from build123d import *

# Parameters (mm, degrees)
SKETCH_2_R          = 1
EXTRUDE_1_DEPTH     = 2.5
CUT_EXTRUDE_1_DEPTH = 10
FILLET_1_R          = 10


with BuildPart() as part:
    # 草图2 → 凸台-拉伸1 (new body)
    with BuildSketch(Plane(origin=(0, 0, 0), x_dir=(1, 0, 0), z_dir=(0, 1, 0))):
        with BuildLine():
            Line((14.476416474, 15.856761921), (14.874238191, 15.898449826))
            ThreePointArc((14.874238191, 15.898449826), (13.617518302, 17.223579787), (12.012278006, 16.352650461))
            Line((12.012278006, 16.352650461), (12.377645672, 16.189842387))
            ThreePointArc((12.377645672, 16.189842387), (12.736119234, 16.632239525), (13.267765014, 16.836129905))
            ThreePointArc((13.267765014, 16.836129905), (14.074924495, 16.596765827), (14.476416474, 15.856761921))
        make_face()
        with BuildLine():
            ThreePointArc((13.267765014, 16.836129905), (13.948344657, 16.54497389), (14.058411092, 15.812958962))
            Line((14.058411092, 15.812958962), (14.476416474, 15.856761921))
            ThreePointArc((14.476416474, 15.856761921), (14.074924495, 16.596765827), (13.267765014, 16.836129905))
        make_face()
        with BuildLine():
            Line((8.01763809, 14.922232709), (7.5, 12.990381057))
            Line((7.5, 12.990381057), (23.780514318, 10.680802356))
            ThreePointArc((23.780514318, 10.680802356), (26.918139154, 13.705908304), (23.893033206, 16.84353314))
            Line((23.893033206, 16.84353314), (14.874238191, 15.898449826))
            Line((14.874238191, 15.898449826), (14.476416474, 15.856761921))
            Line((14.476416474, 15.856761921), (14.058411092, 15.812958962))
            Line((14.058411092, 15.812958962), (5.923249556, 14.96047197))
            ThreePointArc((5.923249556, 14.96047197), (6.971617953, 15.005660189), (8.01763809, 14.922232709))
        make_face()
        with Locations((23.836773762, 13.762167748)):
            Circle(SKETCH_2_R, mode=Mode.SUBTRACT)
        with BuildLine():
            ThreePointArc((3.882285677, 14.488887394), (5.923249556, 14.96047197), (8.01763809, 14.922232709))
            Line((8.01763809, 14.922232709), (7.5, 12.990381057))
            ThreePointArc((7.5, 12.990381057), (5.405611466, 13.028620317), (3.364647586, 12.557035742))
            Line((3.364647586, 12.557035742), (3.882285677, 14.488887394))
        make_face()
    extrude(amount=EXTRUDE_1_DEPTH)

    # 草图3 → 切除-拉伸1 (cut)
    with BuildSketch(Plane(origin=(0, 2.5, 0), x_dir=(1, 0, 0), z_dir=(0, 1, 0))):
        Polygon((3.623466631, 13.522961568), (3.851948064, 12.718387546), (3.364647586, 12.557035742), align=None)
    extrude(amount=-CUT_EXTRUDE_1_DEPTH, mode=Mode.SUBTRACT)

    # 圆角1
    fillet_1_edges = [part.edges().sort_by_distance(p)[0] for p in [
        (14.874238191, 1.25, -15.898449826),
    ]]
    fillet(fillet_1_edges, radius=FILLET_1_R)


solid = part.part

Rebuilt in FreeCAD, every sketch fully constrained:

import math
import FreeCAD as App
import Part
import Sketcher

V = App.Vector
Q = App.Units.Quantity


def edges_at(feature, points):
    """Names of the edges that pass closest to the given points."""
    edges = feature.Shape.Edges
    near = lambda p: min(range(len(edges)), key=lambda i: edges[i].distToShape(Part.Vertex(*p))[0])
    return sorted({f"Edge{near(p) + 1}" for p in points})

doc = App.newDocument("Part")
body = doc.addObject("PartDesign::Body", "Body")

sketch1 = body.newObject("Sketcher::SketchObject", "Sketch")
sketch1.AttachmentSupport = (doc.getObject("XZ_Plane"), [""])
sketch1.MapMode = "FlatFace"
sketch1.addGeometry([
    Part.ArcOfCircle(Part.Circle(V(13.382407, -15.74212, 0), V(0, 0, 1), 1.5), math.radians(-155.982216), math.radians(-5.982216)),
    Part.LineSegment(V(12.012278, -16.35265, 0), V(12.377646, -16.189842, 0)),
    Part.ArcOfCircle(Part.Circle(V(13.382407, -15.74212, 0), V(0, 0, 1), 1.1), math.radians(-155.982215), math.radians(-95.982216)),
    Part.ArcOfCircle(Part.Circle(V(13.346972, -16.080269, 0), V(0, 0, 1), 0.76), math.radians(-95.982216), math.radians(20.592754)),
    Part.LineSegment(V(14.058411, -15.812959, 0), V(5.92325, -14.960472, 0)),
    Part.ArcOfCircle(Part.Circle(V(6.815358, -6.447208, 0), V(0, 0, 1), 8.559879), math.radians(-110.038622), math.radians(-95.982216)),
    Part.LineSegment(V(3.882286, -14.488887, 0), V(3.364648, -12.557036, 0)),
    Part.ArcOfCircle(Part.Circle(V(6.29772, -4.515356, 0), V(0, 0, 1), 8.559879), math.radians(-110.038622), math.radians(-81.925809)),
    Part.LineSegment(V(7.5, -12.990381, 0), V(23.780514, -10.680802, 0)),
    Part.ArcOfCircle(Part.Circle(V(23.836774, -13.762168, 0), V(0, 0, 1), 3.081879), math.radians(-88.954012), math.radians(91.045988)),
    Part.LineSegment(V(23.893033, -16.843533, 0), V(14.874238, -15.89845, 0)),
    Part.Circle(V(23.836774, -13.762168, 0), V(0, 0, 1), 1),
], False)
sketch1.addConstraint([
    Sketcher.Constraint("Coincident", 0, 1, 1, 1),
    Sketcher.Constraint("Coincident", 1, 2, 2, 1),
    Sketcher.Constraint("Coincident", 2, 2, 3, 1),
    Sketcher.Constraint("Coincident", 3, 2, 4, 1),
    Sketcher.Constraint("Coincident", 4, 2, 5, 2),
    Sketcher.Constraint("Coincident", 5, 1, 6, 1),
    Sketcher.Constraint("Coincident", 6, 2, 7, 1),
    Sketcher.Constraint("Coincident", 7, 2, 8, 1),
    Sketcher.Constraint("Coincident", 8, 2, 9, 2),
    Sketcher.Constraint("Coincident", 9, 1, 10, 1),
    Sketcher.Constraint("Coincident", 10, 2, 0, 2),
    Sketcher.Constraint("Coincident", 2, 3, 0, 3),
    Sketcher.Constraint("Coincident", 11, 3, 9, 3),
    Sketcher.Constraint("Diameter", 11, 2.0),
    Sketcher.Constraint("Radius", 0, 1.5),
    Sketcher.Constraint("Radius", 2, 1.1),
    Sketcher.Constraint("Radius", 3, 0.76),
    Sketcher.Constraint("Distance", 6, 2.0),
    Sketcher.Constraint("DistanceX", -1, 1, 7, 2, 7.5),
    Sketcher.Constraint("Radius", 5, 8.559879),
    Sketcher.Constraint("Radius", 7, 8.559879),
    Sketcher.Constraint("Radius", 9, 3.081879),
    Sketcher.Constraint("DistanceX", 3, 3, 9, 3, 10.489802),
    Sketcher.Constraint("DistanceY", 3, 3, 9, 3, 2.318101),
    Sketcher.Constraint("DistanceX", 6, 2, 4, 2, 2.558602),
    Sketcher.Constraint("Distance", 8, 16.443518),
    Sketcher.Constraint("DistanceY", 0, 3, -1, 1, 15.74212),
    Sketcher.Constraint("DistanceY", 3, 3, -1, 1, 16.080269),
    Sketcher.Constraint("DistanceX", -1, 1, 5, 3, 6.815358),
    Sketcher.Constraint("DistanceX", -1, 1, 7, 3, 6.29772),
    Sketcher.Constraint("DistanceX", -1, 1, 0, 1, 12.012278),
    Sketcher.Constraint("DistanceY", 0, 1, -1, 1, 16.35265),
    Sketcher.Constraint("DistanceY", 2, 2, -1, 1, 16.83613),
    Sketcher.Constraint("DistanceX", -1, 1, 3, 2, 14.058411),
    Sketcher.Constraint("DistanceX", -1, 1, 4, 2, 5.92325),
    Sketcher.Constraint("DistanceY", 4, 2, -1, 1, 14.960472),
    Sketcher.Constraint("DistanceY", 7, 2, -1, 1, 12.990381),
    Sketcher.Constraint("DistanceX", -1, 1, 10, 2, 14.874238),
    Sketcher.Constraint("DistanceY", 0, 1, 1, 2, 0.162808),
    Sketcher.Constraint("DistanceX", 9, 3, 9, 1, 0.056259),
])
pad1 = body.newObject("PartDesign::Pad", "Pad")
pad1.Profile = sketch1
pad1.Length = 2.5
pad1.Reversed = True

sketch2 = body.newObject("Sketcher::SketchObject", "Sketch001")
sketch2.AttachmentSupport = (doc.getObject("XZ_Plane"), [""])
sketch2.MapMode = "FlatFace"
sketch2.AttachmentOffset = App.Placement(V(0, 0, -2.5), App.Rotation())
sketch2.addGeometry([
    Part.LineSegment(V(3.851948, -12.718388, 0), V(3.623467, -13.522962, 0)),
    Part.LineSegment(V(3.623467, -13.522962, 0), V(3.364648, -12.557036, 0)),
    Part.LineSegment(V(3.364648, -12.557036, 0), V(3.851948, -12.718388, 0)),
], False)
sketch2.addConstraint([
    Sketcher.Constraint("Coincident", 0, 2, 1, 1),
    Sketcher.Constraint("Coincident", 1, 2, 2, 1),
    Sketcher.Constraint("Coincident", 2, 2, 0, 1),
    Sketcher.Constraint("Angle", 1, Q("105 deg")),
    Sketcher.Constraint("Distance", 1, 1.0),
    Sketcher.Constraint("DistanceX", 1, 2, 2, 2, 0.4873),
    Sketcher.Constraint("Distance", 2, 0.513319),
    Sketcher.Constraint("DistanceY", 0, 2, -1, 1, 13.522962),
    Sketcher.Constraint("DistanceX", -1, 1, 2, 2, 3.851948),
])
pocket1 = body.newObject("PartDesign::Pocket", "Pocket")
pocket1.Profile = sketch2
pocket1.Length = 10
pocket1.Reversed = True
doc.recompute()

fillet = body.newObject("PartDesign::Fillet", "Fillet")
fillet.Base = (pocket1, edges_at(pocket1, [(14.874, 1.25, -15.898)]))
fillet.Radius = 10

doc.recompute()
